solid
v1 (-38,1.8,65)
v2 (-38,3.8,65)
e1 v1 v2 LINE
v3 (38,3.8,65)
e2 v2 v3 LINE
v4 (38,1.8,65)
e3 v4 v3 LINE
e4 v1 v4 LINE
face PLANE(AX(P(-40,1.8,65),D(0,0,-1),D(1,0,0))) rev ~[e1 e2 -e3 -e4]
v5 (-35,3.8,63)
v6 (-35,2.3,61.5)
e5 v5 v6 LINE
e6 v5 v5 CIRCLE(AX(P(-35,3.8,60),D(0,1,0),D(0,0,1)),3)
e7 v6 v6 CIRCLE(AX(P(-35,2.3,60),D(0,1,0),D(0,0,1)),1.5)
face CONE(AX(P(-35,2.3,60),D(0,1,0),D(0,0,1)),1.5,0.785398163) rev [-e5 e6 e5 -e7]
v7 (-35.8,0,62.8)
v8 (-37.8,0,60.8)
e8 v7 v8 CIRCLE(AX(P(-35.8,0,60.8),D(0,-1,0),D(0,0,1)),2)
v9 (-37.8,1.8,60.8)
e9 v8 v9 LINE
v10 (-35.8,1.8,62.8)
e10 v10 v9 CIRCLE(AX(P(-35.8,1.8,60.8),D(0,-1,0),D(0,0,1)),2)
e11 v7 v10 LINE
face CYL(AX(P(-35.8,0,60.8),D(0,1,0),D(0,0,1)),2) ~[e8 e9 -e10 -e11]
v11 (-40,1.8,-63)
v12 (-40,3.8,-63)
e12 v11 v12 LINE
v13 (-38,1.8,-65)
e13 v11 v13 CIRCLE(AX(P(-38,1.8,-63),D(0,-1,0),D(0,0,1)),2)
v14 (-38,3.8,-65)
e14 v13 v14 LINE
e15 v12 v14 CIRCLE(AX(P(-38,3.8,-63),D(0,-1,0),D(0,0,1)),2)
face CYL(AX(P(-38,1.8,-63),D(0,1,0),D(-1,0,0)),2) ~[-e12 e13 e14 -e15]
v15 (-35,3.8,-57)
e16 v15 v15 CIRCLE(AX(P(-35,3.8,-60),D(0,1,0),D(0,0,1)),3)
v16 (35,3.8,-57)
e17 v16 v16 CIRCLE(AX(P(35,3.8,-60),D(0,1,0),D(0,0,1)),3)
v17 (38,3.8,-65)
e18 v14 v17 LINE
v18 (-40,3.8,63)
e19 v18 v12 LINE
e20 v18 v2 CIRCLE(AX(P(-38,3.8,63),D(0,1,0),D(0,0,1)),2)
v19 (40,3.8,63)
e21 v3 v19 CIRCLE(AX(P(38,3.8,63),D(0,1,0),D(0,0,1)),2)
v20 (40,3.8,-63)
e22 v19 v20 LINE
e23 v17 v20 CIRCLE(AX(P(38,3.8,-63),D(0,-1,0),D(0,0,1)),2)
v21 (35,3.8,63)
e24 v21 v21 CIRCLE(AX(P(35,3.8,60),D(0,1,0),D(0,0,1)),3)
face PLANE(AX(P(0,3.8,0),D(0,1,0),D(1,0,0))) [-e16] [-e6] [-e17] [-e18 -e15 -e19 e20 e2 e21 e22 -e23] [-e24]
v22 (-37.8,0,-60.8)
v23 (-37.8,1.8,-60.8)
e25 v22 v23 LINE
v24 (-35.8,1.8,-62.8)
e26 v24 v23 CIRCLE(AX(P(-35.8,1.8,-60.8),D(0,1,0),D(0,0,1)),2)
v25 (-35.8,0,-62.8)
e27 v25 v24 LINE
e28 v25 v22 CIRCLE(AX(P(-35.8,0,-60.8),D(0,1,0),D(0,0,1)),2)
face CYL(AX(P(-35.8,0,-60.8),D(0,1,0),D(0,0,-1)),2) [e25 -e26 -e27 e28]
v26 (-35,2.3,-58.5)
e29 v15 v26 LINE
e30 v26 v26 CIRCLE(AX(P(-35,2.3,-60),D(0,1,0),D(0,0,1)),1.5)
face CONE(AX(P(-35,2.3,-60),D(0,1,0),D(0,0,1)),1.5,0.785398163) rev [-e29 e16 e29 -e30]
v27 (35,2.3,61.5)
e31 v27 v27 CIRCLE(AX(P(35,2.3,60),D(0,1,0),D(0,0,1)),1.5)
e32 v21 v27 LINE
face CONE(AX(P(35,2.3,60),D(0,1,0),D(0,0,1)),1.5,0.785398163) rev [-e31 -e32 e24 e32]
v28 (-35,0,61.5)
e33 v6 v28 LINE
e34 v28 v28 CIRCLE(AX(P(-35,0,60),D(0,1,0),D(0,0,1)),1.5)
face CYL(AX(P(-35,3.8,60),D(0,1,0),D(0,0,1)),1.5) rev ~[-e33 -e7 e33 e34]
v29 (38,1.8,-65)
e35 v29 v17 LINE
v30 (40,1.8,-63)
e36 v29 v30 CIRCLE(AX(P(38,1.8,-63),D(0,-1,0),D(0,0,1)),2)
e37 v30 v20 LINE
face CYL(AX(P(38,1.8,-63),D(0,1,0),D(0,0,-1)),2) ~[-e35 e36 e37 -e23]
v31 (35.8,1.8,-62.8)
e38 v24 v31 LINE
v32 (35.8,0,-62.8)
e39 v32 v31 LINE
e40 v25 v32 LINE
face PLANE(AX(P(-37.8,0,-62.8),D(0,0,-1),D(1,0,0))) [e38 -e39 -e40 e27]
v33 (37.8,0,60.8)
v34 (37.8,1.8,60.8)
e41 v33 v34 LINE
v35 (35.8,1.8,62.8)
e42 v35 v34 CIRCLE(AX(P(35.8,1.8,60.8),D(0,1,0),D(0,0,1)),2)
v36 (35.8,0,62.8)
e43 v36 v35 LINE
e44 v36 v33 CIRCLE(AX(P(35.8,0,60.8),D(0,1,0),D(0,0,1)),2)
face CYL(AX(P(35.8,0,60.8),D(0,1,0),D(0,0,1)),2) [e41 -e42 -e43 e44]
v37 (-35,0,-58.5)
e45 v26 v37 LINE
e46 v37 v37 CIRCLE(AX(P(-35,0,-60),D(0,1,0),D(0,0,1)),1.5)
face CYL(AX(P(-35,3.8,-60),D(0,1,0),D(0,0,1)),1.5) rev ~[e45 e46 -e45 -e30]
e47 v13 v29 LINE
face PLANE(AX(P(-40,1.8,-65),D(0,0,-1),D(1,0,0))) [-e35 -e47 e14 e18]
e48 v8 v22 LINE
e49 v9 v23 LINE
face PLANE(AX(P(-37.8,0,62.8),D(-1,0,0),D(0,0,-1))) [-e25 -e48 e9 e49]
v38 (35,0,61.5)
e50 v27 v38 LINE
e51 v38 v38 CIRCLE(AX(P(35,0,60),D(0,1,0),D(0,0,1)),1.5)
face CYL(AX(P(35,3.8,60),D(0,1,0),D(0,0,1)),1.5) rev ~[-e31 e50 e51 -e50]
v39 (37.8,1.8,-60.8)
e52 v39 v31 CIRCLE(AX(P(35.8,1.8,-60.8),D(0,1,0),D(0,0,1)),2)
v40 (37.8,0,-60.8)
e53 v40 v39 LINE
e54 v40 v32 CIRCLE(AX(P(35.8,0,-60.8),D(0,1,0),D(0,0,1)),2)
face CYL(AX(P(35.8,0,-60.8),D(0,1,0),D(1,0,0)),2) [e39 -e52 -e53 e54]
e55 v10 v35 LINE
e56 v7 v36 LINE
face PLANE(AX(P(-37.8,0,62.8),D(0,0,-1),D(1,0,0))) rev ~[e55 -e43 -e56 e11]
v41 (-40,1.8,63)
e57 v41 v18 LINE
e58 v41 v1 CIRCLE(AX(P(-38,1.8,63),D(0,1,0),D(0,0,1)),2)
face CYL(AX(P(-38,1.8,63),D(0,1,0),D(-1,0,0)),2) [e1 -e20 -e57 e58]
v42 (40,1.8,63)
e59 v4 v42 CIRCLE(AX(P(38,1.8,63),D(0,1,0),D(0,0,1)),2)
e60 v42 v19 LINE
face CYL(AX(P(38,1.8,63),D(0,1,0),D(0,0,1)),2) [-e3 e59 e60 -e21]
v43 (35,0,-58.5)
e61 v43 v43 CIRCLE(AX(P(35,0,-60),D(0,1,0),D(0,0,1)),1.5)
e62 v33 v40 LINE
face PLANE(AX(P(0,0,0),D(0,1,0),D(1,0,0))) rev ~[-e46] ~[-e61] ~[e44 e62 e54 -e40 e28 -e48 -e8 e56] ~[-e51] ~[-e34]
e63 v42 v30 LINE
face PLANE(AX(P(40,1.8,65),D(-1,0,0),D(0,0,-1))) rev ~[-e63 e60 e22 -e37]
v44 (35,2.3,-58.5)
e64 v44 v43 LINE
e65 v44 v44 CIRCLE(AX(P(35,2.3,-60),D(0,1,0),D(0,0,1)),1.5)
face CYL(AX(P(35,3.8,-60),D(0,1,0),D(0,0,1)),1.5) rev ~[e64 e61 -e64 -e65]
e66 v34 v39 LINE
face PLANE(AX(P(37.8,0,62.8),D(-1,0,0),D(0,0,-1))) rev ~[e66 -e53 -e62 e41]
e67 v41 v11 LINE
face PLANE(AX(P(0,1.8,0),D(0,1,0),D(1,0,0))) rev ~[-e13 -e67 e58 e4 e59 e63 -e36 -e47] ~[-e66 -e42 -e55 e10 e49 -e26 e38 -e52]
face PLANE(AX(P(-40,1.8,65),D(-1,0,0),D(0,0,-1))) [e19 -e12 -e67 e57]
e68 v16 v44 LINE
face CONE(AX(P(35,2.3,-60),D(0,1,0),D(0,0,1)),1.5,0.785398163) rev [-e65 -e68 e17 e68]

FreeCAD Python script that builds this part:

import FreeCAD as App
import Part
import Sketcher
from FreeCAD import Vector


def edges_at(feature, points):
    """Names of the edges that pass closest to the given points."""
    edges = feature.Shape.Edges
    near = lambda p: min(range(len(edges)), key=lambda i: edges[i].distToShape(Part.Vertex(*p))[0])
    return sorted({f"Edge{near(p) + 1}" for p in points})

doc = App.newDocument("Part")
body = doc.addObject("PartDesign::Body", "Body")

sketch1 = body.newObject("Sketcher::SketchObject", "Sketch")
sketch1.AttachmentSupport = (doc.getObject("XZ_Plane"), [""])
sketch1.MapMode = "FlatFace"
sketch1.addGeometry(Part.LineSegment(Vector(-38, -63, 0), Vector(-38, 63, 0)), False)
sketch1.addGeometry(Part.LineSegment(Vector(-38, 63, 0), Vector(38, 63, 0)), False)
sketch1.addGeometry(Part.LineSegment(Vector(38, 63, 0), Vector(38, -63, 0)), False)
sketch1.addGeometry(Part.LineSegment(Vector(38, -63, 0), Vector(-38, -63, 0)), False)
sketch1.addConstraint(Sketcher.Constraint("Coincident", 0, 2, 1, 1))
sketch1.addConstraint(Sketcher.Constraint("Coincident", 1, 2, 2, 1))
sketch1.addConstraint(Sketcher.Constraint("Coincident", 2, 2, 3, 1))
sketch1.addConstraint(Sketcher.Constraint("Coincident", 3, 2, 0, 1))
sketch1.addConstraint(Sketcher.Constraint("Vertical", 0))
sketch1.addConstraint(Sketcher.Constraint("Horizontal", 1))
sketch1.addConstraint(Sketcher.Constraint("Vertical", 2))
sketch1.addConstraint(Sketcher.Constraint("Horizontal", 3))
sketch1.addConstraint(Sketcher.Constraint("Symmetric", 0, 2, 2, 2, -1, 1))
sketch1.addConstraint(Sketcher.Constraint("DistanceX", 1, 1, 1, 2, 75.6))
sketch1.addConstraint(Sketcher.Constraint("DistanceY", 0, 1, 0, 2, 125.6))
pad1 = body.newObject("PartDesign::Pad", "Pad")
pad1.Profile = sketch1
pad1.Length = 1.8
pad1.Reversed = True

sketch2 = body.newObject("Sketcher::SketchObject", "Sketch001")
sketch2.AttachmentSupport = (doc.getObject("XZ_Plane"), [""])
sketch2.MapMode = "FlatFace"
sketch2.AttachmentOffset = App.Placement(Vector(0, 0, -1.8), App.Rotation())
sketch2.addGeometry(Part.LineSegment(Vector(-40, -65, 0), Vector(-40, 65, 0)), False)
sketch2.addGeometry(Part.LineSegment(Vector(-40, 65, 0), Vector(40, 65, 0)), False)
sketch2.addGeometry(Part.LineSegment(Vector(40, 65, 0), Vector(40, -65, 0)), False)
sketch2.addGeometry(Part.LineSegment(Vector(40, -65, 0), Vector(-40, -65, 0)), False)
sketch2.addConstraint(Sketcher.Constraint("Coincident", 0, 2, 1, 1))
sketch2.addConstraint(Sketcher.Constraint("Coincident", 1, 2, 2, 1))
sketch2.addConstraint(Sketcher.Constraint("Coincident", 2, 2, 3, 1))
sketch2.addConstraint(Sketcher.Constraint("Coincident", 3, 2, 0, 1))
sketch2.addConstraint(Sketcher.Constraint("Vertical", 0))
sketch2.addConstraint(Sketcher.Constraint("Horizontal", 1))
sketch2.addConstraint(Sketcher.Constraint("Vertical", 2))
sketch2.addConstraint(Sketcher.Constraint("Horizontal", 3))
sketch2.addConstraint(Sketcher.Constraint("Symmetric", 0, 2, 2, 2, -1, 1))
sketch2.addConstraint(Sketcher.Constraint("DistanceX", 1, 1, 1, 2, 80.0))
sketch2.addConstraint(Sketcher.Constraint("DistanceY", 0, 1, 0, 2, 130.0))
pad2 = body.newObject("PartDesign::Pad", "Pad001")
pad2.Profile = sketch2
pad2.Length = 2
pad2.Reversed = True

sketch3 = body.newObject("Sketcher::SketchObject", "Sketch002")
sketch3.AttachmentSupport = (doc.getObject("XZ_Plane"), [""])
sketch3.MapMode = "FlatFace"
sketch3.AttachmentOffset = App.Placement(Vector(0, 0, -3.8), App.Rotation())
sketch3.addGeometry(Part.Circle(Vector(-35, -60, 0), Vector(0, 0, 1), 1.5), False)
sketch3.addGeometry(Part.Circle(Vector(35, -60, 0), Vector(0, 0, 1), 1.5), False)
sketch3.addGeometry(Part.Circle(Vector(35, 60, 0), Vector(0, 0, 1), 1.5), False)
sketch3.addGeometry(Part.Circle(Vector(-35, 60, 0), Vector(0, 0, 1), 1.5), False)
sketch3.addConstraint(Sketcher.Constraint("Equal", 0, 1))
sketch3.addConstraint(Sketcher.Constraint("Equal", 1, 2))
sketch3.addConstraint(Sketcher.Constraint("Equal", 2, 3))
sketch3.addConstraint(Sketcher.Constraint("Symmetric", 0, 3, 2, 3, -1, 1))
sketch3.addConstraint(Sketcher.Constraint("Symmetric", 1, 3, 3, 3, -1, 1))
sketch3.addConstraint(Sketcher.Constraint("Symmetric", 0, 3, 1, 3, -2))
sketch3.addConstraint(Sketcher.Constraint("Diameter", 0, 3.0))
sketch3.addConstraint(Sketcher.Constraint("DistanceX", 0, 3, -1, 1, 35.0))
sketch3.addConstraint(Sketcher.Constraint("DistanceY", 0, 3, -1, 1, 60.0))
pocket1 = body.newObject("PartDesign::Pocket", "Pocket")
pocket1.Profile = sketch3
pocket1.Type = "ThroughAll"
pocket1.Reversed = True
doc.recompute()

chamfer = body.newObject("PartDesign::Chamfer", "Chamfer")
chamfer.Base = (pocket1, edges_at(pocket1, [
    (-35, 3.8, 58.5),
    (35, 3.8, 58.5),
    (35, 3.8, -61.5),
    (-35, 3.8, -61.5),
]))
chamfer.Size = 1.5
doc.recompute()

fillet = body.newObject("PartDesign::Fillet", "Fillet")
fillet.Base = (chamfer, edges_at(chamfer, [
    (40, 2.8, 65),
    (40, 2.8, -65),
    (-40, 2.8, -65),
    (-40, 2.8, 65),
    (37.8, 0.9, 62.8),
    (-37.8, 0.9, 62.8),
    (-37.8, 0.9, -62.8),
    (37.8, 0.9, -62.8),
]))
fillet.Radius = 2

doc.recompute()
